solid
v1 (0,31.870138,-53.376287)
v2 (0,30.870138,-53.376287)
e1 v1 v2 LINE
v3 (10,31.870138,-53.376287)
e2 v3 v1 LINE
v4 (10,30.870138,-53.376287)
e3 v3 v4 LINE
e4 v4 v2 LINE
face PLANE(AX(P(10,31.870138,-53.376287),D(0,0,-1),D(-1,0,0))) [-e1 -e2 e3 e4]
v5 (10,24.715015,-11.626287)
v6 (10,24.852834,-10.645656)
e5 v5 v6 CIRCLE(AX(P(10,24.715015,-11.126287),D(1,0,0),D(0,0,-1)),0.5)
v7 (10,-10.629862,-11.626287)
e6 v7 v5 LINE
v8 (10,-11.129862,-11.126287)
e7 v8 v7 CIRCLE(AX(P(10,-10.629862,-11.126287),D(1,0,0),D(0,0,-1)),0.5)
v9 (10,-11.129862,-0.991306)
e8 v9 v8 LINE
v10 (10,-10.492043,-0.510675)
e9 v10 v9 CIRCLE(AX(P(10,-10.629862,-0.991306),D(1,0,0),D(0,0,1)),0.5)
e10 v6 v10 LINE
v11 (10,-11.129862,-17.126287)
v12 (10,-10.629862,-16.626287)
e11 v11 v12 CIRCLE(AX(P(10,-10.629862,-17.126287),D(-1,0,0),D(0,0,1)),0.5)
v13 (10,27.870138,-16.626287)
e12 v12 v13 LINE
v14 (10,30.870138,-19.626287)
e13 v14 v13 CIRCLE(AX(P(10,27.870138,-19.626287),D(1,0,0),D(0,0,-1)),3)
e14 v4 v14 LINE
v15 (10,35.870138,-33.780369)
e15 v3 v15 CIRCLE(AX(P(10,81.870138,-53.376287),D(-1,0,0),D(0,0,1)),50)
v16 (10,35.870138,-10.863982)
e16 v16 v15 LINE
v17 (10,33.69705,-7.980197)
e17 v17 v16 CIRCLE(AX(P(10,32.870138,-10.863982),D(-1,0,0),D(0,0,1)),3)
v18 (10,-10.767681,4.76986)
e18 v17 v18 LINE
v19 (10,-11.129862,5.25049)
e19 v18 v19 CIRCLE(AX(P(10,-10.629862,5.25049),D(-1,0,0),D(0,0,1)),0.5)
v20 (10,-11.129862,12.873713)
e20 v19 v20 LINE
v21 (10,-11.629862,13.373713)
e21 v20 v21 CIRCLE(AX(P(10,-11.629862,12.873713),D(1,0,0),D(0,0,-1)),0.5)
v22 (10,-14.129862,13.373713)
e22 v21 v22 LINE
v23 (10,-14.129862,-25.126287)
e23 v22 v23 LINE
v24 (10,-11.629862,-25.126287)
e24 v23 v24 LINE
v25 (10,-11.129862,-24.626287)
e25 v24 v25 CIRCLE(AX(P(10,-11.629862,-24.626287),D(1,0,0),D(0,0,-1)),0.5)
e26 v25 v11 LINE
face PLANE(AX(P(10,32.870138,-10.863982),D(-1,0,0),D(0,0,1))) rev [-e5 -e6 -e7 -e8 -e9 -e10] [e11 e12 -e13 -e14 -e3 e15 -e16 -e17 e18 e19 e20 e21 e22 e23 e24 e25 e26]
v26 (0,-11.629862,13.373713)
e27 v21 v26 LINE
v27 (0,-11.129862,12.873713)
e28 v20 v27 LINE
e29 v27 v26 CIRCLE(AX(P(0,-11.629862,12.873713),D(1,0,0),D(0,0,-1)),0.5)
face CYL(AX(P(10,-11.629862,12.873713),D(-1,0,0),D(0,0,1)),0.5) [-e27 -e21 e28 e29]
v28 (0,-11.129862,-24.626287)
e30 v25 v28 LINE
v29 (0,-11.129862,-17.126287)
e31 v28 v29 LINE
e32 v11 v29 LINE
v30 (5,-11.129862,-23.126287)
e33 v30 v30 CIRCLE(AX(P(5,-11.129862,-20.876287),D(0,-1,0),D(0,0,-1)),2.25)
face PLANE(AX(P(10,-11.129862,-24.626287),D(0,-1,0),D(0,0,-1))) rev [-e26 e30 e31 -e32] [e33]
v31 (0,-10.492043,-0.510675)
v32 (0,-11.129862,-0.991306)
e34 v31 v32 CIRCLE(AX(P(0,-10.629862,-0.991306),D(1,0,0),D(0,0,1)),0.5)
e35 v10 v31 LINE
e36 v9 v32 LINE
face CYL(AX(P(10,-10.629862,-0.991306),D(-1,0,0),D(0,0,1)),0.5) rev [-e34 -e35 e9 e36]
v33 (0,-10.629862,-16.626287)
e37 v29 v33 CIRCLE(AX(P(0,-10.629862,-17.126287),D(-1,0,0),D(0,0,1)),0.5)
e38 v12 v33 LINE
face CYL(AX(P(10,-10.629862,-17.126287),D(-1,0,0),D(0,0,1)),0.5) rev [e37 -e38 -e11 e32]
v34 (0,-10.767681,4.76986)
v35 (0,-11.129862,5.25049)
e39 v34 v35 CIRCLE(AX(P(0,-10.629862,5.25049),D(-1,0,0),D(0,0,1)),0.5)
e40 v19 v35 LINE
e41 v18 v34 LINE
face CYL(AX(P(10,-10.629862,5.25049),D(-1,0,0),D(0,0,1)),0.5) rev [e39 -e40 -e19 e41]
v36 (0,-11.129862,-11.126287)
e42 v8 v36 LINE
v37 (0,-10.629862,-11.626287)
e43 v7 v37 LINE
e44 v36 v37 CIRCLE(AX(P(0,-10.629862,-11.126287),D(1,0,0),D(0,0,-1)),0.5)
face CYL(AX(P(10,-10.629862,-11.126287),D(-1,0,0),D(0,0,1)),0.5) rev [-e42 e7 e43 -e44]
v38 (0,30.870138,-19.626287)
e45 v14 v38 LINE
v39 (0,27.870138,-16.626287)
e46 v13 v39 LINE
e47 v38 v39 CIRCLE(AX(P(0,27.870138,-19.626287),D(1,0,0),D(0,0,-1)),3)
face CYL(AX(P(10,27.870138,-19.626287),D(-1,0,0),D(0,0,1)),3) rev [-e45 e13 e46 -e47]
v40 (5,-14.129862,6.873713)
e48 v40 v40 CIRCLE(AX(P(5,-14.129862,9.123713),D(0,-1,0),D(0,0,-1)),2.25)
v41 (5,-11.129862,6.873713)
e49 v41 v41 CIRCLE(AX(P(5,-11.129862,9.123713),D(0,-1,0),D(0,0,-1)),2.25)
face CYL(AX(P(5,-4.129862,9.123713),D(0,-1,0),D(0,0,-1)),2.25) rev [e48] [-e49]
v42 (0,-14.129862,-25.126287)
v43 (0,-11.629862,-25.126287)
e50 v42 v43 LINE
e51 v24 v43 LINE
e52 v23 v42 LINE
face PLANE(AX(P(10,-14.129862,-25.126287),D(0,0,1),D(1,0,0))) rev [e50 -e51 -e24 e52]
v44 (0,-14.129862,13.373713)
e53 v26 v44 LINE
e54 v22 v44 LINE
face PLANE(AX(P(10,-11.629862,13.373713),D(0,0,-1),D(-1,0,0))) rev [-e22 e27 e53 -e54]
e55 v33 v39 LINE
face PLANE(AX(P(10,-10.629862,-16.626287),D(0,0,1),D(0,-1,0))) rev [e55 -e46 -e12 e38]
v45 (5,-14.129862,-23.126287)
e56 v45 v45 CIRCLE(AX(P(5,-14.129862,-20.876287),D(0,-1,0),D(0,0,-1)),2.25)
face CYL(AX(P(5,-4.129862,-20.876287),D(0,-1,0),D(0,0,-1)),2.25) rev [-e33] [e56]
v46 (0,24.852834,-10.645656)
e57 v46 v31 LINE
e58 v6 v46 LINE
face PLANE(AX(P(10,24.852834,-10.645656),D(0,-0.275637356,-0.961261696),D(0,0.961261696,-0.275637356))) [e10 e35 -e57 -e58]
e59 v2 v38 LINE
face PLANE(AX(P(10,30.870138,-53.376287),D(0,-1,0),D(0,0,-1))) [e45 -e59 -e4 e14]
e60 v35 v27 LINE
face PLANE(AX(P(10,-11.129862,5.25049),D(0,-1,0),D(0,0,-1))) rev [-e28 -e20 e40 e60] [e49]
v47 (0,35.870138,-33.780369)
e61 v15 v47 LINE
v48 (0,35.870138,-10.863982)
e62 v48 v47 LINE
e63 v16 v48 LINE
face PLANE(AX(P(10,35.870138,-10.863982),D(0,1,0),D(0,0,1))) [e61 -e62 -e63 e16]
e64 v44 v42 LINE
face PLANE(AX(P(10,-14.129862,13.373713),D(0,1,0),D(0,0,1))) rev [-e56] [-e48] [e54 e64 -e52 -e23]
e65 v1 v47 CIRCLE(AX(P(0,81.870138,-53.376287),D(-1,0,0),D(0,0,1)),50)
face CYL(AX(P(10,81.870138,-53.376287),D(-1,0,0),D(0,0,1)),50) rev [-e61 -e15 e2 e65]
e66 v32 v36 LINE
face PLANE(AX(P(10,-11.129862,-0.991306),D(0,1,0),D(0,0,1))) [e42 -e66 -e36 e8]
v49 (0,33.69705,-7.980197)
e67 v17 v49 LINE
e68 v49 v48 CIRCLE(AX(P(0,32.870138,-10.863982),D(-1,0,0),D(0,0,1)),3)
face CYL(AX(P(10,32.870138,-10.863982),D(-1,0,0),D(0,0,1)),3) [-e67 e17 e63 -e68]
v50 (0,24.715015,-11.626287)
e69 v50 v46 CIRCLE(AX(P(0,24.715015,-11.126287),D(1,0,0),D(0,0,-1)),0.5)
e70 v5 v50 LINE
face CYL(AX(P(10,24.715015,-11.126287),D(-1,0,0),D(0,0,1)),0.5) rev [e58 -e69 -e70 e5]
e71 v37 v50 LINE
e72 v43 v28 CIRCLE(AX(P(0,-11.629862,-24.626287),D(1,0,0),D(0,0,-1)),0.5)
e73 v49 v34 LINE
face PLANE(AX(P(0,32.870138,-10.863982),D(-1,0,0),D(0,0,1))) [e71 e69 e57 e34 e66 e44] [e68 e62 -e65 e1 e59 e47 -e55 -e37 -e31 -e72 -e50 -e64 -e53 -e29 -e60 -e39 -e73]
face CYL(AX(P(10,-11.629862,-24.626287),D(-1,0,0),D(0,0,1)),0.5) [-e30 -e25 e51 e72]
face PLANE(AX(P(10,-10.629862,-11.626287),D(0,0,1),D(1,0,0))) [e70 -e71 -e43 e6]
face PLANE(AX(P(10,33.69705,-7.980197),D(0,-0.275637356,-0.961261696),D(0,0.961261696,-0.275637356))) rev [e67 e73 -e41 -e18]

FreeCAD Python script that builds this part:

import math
import FreeCAD as App
import Part
import Sketcher

V = App.Vector
Q = App.Units.Quantity


def add_polygon(sketch, points):
    """Adds a closed chain of lines whose ends are joined by coincident constraints."""
    first, n = sketch.GeometryCount, len(points)
    for a, b in zip(points, points[1:] + points[:1]):
        sketch.addGeometry(Part.LineSegment(App.Vector(*a, 0), App.Vector(*b, 0)), False)
    for i in range(n):
        sketch.addConstraint(Sketcher.Constraint("Coincident", first + i, 2, first + (i + 1) % n, 1))

doc = App.newDocument("Part")
body = doc.addObject("PartDesign::Body", "Body")

# Sketch on YZ plane
sketch1 = body.newObject("Sketcher::SketchObject", "Sketch")
sketch1.AttachmentSupport = (doc.getObject("YZ_Plane"), [""])
sketch1.MapMode = "FlatFace"
sketch1.addGeometry(Part.LineSegment(V(33.69705, -7.980197, 0), V(-10.767681, 4.76986, 0)), False)
sketch1.addGeometry(Part.ArcOfCircle(Part.Circle(V(-10.629862, 5.25049, 0), V(0, 0, 1), 0.5), math.radians(180), math.radians(254)), False)
sketch1.addGeometry(Part.LineSegment(V(-11.129862, 5.25049, 0), V(-11.129862, 12.873713, 0)), False)
sketch1.addGeometry(Part.ArcOfCircle(Part.Circle(V(-11.629862, 12.873713, 0), V(0, 0, 1), 0.5), math.radians(0), math.radians(90)), False)
sketch1.addGeometry(Part.LineSegment(V(-11.629862, 13.373713, 0), V(-14.129862, 13.373713, 0)), False)
sketch1.addGeometry(Part.LineSegment(V(-14.129862, 13.373713, 0), V(-14.129862, -25.126287, 0)), False)
sketch1.addGeometry(Part.LineSegment(V(-14.129862, -25.126287, 0), V(-11.629862, -25.126287, 0)), False)
sketch1.addGeometry(Part.ArcOfCircle(Part.Circle(V(-11.629862, -24.626287, 0), V(0, 0, 1), 0.5), math.radians(-90), math.radians(0)), False)
sketch1.addGeometry(Part.LineSegment(V(-11.129862, -24.626287, 0), V(-11.129862, -17.126287, 0)), False)
sketch1.addGeometry(Part.ArcOfCircle(Part.Circle(V(-10.629862, -17.126287, 0), V(0, 0, 1), 0.5), math.radians(90), math.radians(180)), False)
sketch1.addGeometry(Part.LineSegment(V(-10.629862, -16.626287, 0), V(27.870138, -16.626287, 0)), False)
sketch1.addGeometry(Part.ArcOfCircle(Part.Circle(V(27.870138, -19.626287, 0), V(0, 0, 1), 3), math.radians(0), math.radians(90)), False)
sketch1.addGeometry(Part.LineSegment(V(30.870138, -19.626287, 0), V(30.870138, -53.376287, 0)), False)
sketch1.addGeometry(Part.LineSegment(V(30.870138, -53.376287, 0), V(31.870138, -53.376287, 0)), False)
sketch1.addGeometry(Part.ArcOfCircle(Part.Circle(V(81.870138, -53.376287, 0), V(0, 0, 1), 50), math.radians(156.926082), math.radians(180)), False)
sketch1.addGeometry(Part.LineSegment(V(35.870138, -33.780369, 0), V(35.870138, -10.863982, 0)), False)
sketch1.addGeometry(Part.ArcOfCircle(Part.Circle(V(32.870138, -10.863982, 0), V(0, 0, 1), 3), math.radians(0), math.radians(74)), False)
sketch1.addConstraint(Sketcher.Constraint("Tangent", 0, 2, 1, 2))
sketch1.addConstraint(Sketcher.Constraint("Tangent", 1, 1, 2, 1))
sketch1.addConstraint(Sketcher.Constraint("Tangent", 2, 2, 3, 1))
sketch1.addConstraint(Sketcher.Constraint("Tangent", 3, 2, 4, 1))
sketch1.addConstraint(Sketcher.Constraint("Coincident", 4, 2, 5, 1))
sketch1.addConstraint(Sketcher.Constraint("Coincident", 5, 2, 6, 1))
sketch1.addConstraint(Sketcher.Constraint("Tangent", 6, 2, 7, 1))
sketch1.addConstraint(Sketcher.Constraint("Tangent", 7, 2, 8, 1))
sketch1.addConstraint(Sketcher.Constraint("Tangent", 8, 2, 9, 2))
sketch1.addConstraint(Sketcher.Constraint("Tangent", 9, 1, 10, 1))
sketch1.addConstraint(Sketcher.Constraint("Tangent", 10, 2, 11, 2))
sketch1.addConstraint(Sketcher.Constraint("Tangent", 11, 1, 12, 1))
sketch1.addConstraint(Sketcher.Constraint("Coincident", 12, 2, 13, 1))
sketch1.addConstraint(Sketcher.Constraint("Coincident", 13, 2, 14, 2))
sketch1.addConstraint(Sketcher.Constraint("Coincident", 14, 1, 15, 1))
sketch1.addConstraint(Sketcher.Constraint("Tangent", 15, 2, 16, 1))
sketch1.addConstraint(Sketcher.Constraint("Tangent", 16, 2, 0, 1))
sketch1.addConstraint(Sketcher.Constraint("Vertical", 2))
sketch1.addConstraint(Sketcher.Constraint("Horizontal", 4))
sketch1.addConstraint(Sketcher.Constraint("Vertical", 5))
sketch1.addConstraint(Sketcher.Constraint("Horizontal", 6))
sketch1.addConstraint(Sketcher.Constraint("Vertical", 8))
sketch1.addConstraint(Sketcher.Constraint("Horizontal", 10))
sketch1.addConstraint(Sketcher.Constraint("Vertical", 12))
sketch1.addConstraint(Sketcher.Constraint("Horizontal", 13))
sketch1.addConstraint(Sketcher.Constraint("Vertical", 15))
sketch1.addConstraint(Sketcher.Constraint("Equal", 1, 3))
sketch1.addConstraint(Sketcher.Constraint("Equal", 3, 7))
sketch1.addConstraint(Sketcher.Constraint("Equal", 7, 9))
sketch1.addConstraint(Sketcher.Constraint("Equal", 11, 16))
sketch1.addConstraint(Sketcher.Constraint("Horizontal", 14, 3, 12, 2))
sketch1.addConstraint(Sketcher.Constraint("Vertical", 3, 3, 7, 3))
sketch1.addConstraint(Sketcher.Constraint("Equal", 10, 5))
sketch1.addConstraint(Sketcher.Constraint("Radius", 11, 3.0))
sketch1.addConstraint(Sketcher.Constraint("Radius", 14, 50.0))
sketch1.addConstraint(Sketcher.Constraint("Radius", 1, 0.5))
sketch1.addConstraint(Sketcher.Constraint("DistanceX", 13, 1, 13, 2, 1.0))
sketch1.addConstraint(Sketcher.Constraint("Angle", 0, Q("164 deg")))
sketch1.addConstraint(Sketcher.Constraint("DistanceX", 4, 2, 4, 1, 2.5))
sketch1.addConstraint(Sketcher.Constraint("DistanceX", 10, 1, 10, 2, 38.5))
sketch1.addConstraint(Sketcher.Constraint("DistanceY", 8, 1, 8, 2, 7.5))
sketch1.addConstraint(Sketcher.Constraint("DistanceX", 11, 3, 16, 3, 5.0))
sketch1.addConstraint(Sketcher.Constraint("DistanceY", 12, 2, 12, 1, 33.75))
sketch1.addConstraint(Sketcher.Constraint("DistanceY", 2, 1, 2, 2, 7.623223))
sketch1.addConstraint(Sketcher.Constraint("DistanceX", 1, 3, -1, 1, 10.629862))
sketch1.addConstraint(Sketcher.Constraint("DistanceY", -1, 1, 1, 3, 5.25049))
pad1 = body.newObject("PartDesign::Pad", "Pad")
pad1.Profile = sketch1
pad1.Length = 10

# Sketch on YZ plane
sketch2 = body.newObject("Sketcher::SketchObject", "Sketch001")
sketch2.AttachmentSupport = (doc.getObject("YZ_Plane"), [""])
sketch2.MapMode = "FlatFace"
add_polygon(sketch2, [(45.27, 22.774), (-23.53, 22.774), (-23.53, -62.776), (45.27, -62.776)])  # lines 0-3
sketch2.addGeometry(Part.LineSegment(V(-10.767681, 4.76986, 0), V(33.69705, -7.980197, 0)), False)  # 4
sketch2.addGeometry(Part.ArcOfCircle(Part.Circle(V(32.870138, -10.863982, 0), V(0, 0, 1), 3), math.radians(0), math.radians(74)), False)  # 5
sketch2.addGeometry(Part.LineSegment(V(35.870138, -10.863982, 0), V(35.870138, -33.780369, 0)), False)  # 6
sketch2.addGeometry(Part.ArcOfCircle(Part.Circle(V(81.870138, -53.376287, 0), V(0, 0, 1), 50), math.radians(156.926082), math.radians(180)), False)  # 7
sketch2.addGeometry(Part.LineSegment(V(31.870138, -53.376287, 0), V(30.870138, -53.376287, 0)), False)  # 8
sketch2.addGeometry(Part.LineSegment(V(30.870138, -53.376287, 0), V(30.870138, -19.626287, 0)), False)  # 9
sketch2.addGeometry(Part.ArcOfCircle(Part.Circle(V(27.870138, -19.626287, 0), V(0, 0, 1), 3), math.radians(0), math.radians(90)), False)  # 10
sketch2.addGeometry(Part.LineSegment(V(27.870138, -16.626287, 0), V(-10.629862, -16.626287, 0)), False)  # 11
sketch2.addGeometry(Part.ArcOfCircle(Part.Circle(V(-10.629862, -17.126287, 0), V(0, 0, 1), 0.5), math.radians(90), math.radians(180)), False)  # 12
sketch2.addGeometry(Part.LineSegment(V(-11.129862, -17.126287, 0), V(-11.129862, -24.626287, 0)), False)  # 13
sketch2.addGeometry(Part.ArcOfCircle(Part.Circle(V(-11.629862, -24.626287, 0), V(0, 0, 1), 0.5), math.radians(-90), math.radians(0)), False)  # 14
sketch2.addGeometry(Part.LineSegment(V(-11.629862, -25.126287, 0), V(-14.129862, -25.126287, 0)), False)  # 15
sketch2.addGeometry(Part.LineSegment(V(-14.129862, -25.126287, 0), V(-14.129862, 13.373713, 0)), False)  # 16
sketch2.addGeometry(Part.LineSegment(V(-14.129862, 13.373713, 0), V(-11.629862, 13.373713, 0)), False)  # 17
sketch2.addGeometry(Part.ArcOfCircle(Part.Circle(V(-11.629862, 12.873713, 0), V(0, 0, 1), 0.5), math.radians(0), math.radians(90)), False)  # 18
sketch2.addGeometry(Part.LineSegment(V(-11.129862, 12.873713, 0), V(-11.129862, 5.25049, 0)), False)  # 19
sketch2.addGeometry(Part.ArcOfCircle(Part.Circle(V(-10.629862, 5.25049, 0), V(0, 0, 1), 0.5), math.radians(180), math.radians(254)), False)  # 20
sketch2.addGeometry(Part.LineSegment(V(-11.129862, -0.991306, 0), V(-11.129862, -11.126287, 0)), False)  # 21
sketch2.addGeometry(Part.ArcOfCircle(Part.Circle(V(-10.629862, -11.126287, 0), V(0, 0, 1), 0.5), math.radians(180), math.radians(270)), False)  # 22
sketch2.addGeometry(Part.LineSegment(V(-10.629862, -11.626287, 0), V(24.715015, -11.626287, 0)), False)  # 23
sketch2.addGeometry(Part.ArcOfCircle(Part.Circle(V(24.715015, -11.126287, 0), V(0, 0, 1), 0.5), math.radians(-90), math.radians(74)), False)  # 24
sketch2.addGeometry(Part.LineSegment(V(24.852834, -10.645656, 0), V(-10.492043, -0.510675, 0)), False)  # 25
sketch2.addGeometry(Part.ArcOfCircle(Part.Circle(V(-10.629862, -0.991306, 0), V(0, 0, 1), 0.5), math.radians(74), math.radians(180)), False)  # 26
sketch2.addConstraint(Sketcher.Constraint("Tangent", 4, 2, 5, 2))
sketch2.addConstraint(Sketcher.Constraint("Tangent", 5, 1, 6, 1))
sketch2.addConstraint(Sketcher.Constraint("Coincident", 6, 2, 7, 1))
sketch2.addConstraint(Sketcher.Constraint("Coincident", 7, 2, 8, 1))
sketch2.addConstraint(Sketcher.Constraint("Coincident", 8, 2, 9, 1))
sketch2.addConstraint(Sketcher.Constraint("Tangent", 9, 2, 10, 1))
sketch2.addConstraint(Sketcher.Constraint("Tangent", 10, 2, 11, 1))
sketch2.addConstraint(Sketcher.Constraint("Tangent", 11, 2, 12, 1))
sketch2.addConstraint(Sketcher.Constraint("Tangent", 12, 2, 13, 1))
sketch2.addConstraint(Sketcher.Constraint("Tangent", 13, 2, 14, 2))
sketch2.addConstraint(Sketcher.Constraint("Tangent", 14, 1, 15, 1))
sketch2.addConstraint(Sketcher.Constraint("Coincident", 15, 2, 16, 1))
sketch2.addConstraint(Sketcher.Constraint("Coincident", 16, 2, 17, 1))
sketch2.addConstraint(Sketcher.Constraint("Tangent", 17, 2, 18, 2))
sketch2.addConstraint(Sketcher.Constraint("Tangent", 18, 1, 19, 1))
sketch2.addConstraint(Sketcher.Constraint("Tangent", 19, 2, 20, 1))
sketch2.addConstraint(Sketcher.Constraint("Tangent", 20, 2, 4, 1))
sketch2.addConstraint(Sketcher.Constraint("Tangent", 21, 2, 22, 1))
sketch2.addConstraint(Sketcher.Constraint("Tangent", 22, 2, 23, 1))
sketch2.addConstraint(Sketcher.Constraint("Tangent", 23, 2, 24, 1))
sketch2.addConstraint(Sketcher.Constraint("Tangent", 24, 2, 25, 1))
sketch2.addConstraint(Sketcher.Constraint("Tangent", 25, 2, 26, 1))
sketch2.addConstraint(Sketcher.Constraint("Tangent", 26, 2, 21, 1))
sketch2.addConstraint(Sketcher.Constraint("Horizontal", 0))
sketch2.addConstraint(Sketcher.Constraint("Vertical", 1))
sketch2.addConstraint(Sketcher.Constraint("Horizontal", 2))
sketch2.addConstraint(Sketcher.Constraint("Vertical", 3))
sketch2.addConstraint(Sketcher.Constraint("Vertical", 6))
sketch2.addConstraint(Sketcher.Constraint("Horizontal", 8))
sketch2.addConstraint(Sketcher.Constraint("Vertical", 9))
sketch2.addConstraint(Sketcher.Constraint("Horizontal", 11))
sketch2.addConstraint(Sketcher.Constraint("Vertical", 13))
sketch2.addConstraint(Sketcher.Constraint("Horizontal", 15))
sketch2.addConstraint(Sketcher.Constraint("Vertical", 16))
sketch2.addConstraint(Sketcher.Constraint("Horizontal", 17))
sketch2.addConstraint(Sketcher.Constraint("Vertical", 19))
sketch2.addConstraint(Sketcher.Constraint("Vertical", 21))
sketch2.addConstraint(Sketcher.Constraint("Horizontal", 23))
sketch2.addConstraint(Sketcher.Constraint("Equal", 5, 10))
sketch2.addConstraint(Sketcher.Constraint("Equal", 12, 14))
sketch2.addConstraint(Sketcher.Constraint("Equal", 14, 18))
sketch2.addConstraint(Sketcher.Constraint("Equal", 18, 20))
sketch2.addConstraint(Sketcher.Constraint("Equal", 20, 22))
sketch2.addConstraint(Sketcher.Constraint("Equal", 22, 24))
sketch2.addConstraint(Sketcher.Constraint("Equal", 24, 26))
sketch2.addConstraint(Sketcher.Constraint("Parallel", 4, 25))
sketch2.addConstraint(Sketcher.Constraint("Vertical", 14, 3, 18, 3))
sketch2.addConstraint(Sketcher.Constraint("Vertical", 20, 3, 22, 3))
sketch2.addConstraint(Sketcher.Constraint("Equal", 11, 16))
sketch2.addConstraint(Sketcher.Constraint("Radius", 5, 3.0))
sketch2.addConstraint(Sketcher.Constraint("Radius", 7, 50.0))
sketch2.addConstraint(Sketcher.Constraint("Radius", 12, 0.5))
sketch2.addConstraint(Sketcher.Constraint("DistanceX", 8, 2, 8, 1, 1.0))
sketch2.addConstraint(Sketcher.Constraint("Angle", 4, Q("-16 deg")))
sketch2.addConstraint(Sketcher.Constraint("DistanceX", 0, 2, 0, 1, 68.8))
sketch2.addConstraint(Sketcher.Constraint("DistanceX", 11, 2, 11, 1, 38.5))
sketch2.addConstraint(Sketcher.Constraint("DistanceX", 15, 2, 15, 1, 2.5))
sketch2.addConstraint(Sketcher.Constraint("DistanceY", 13, 2, 13, 1, 7.5))
sketch2.addConstraint(Sketcher.Constraint("DistanceX", 5, 3, 7, 3, 49.0))
sketch2.addConstraint(Sketcher.Constraint("DistanceY", 12, 3, 22, 3, 6.0))
sketch2.addConstraint(Sketcher.Constraint("DistanceY", 1, 2, 1, 1, 85.55))
sketch2.addConstraint(Sketcher.Constraint("DistanceY", 9, 1, 9, 2, 33.75))
sketch2.addConstraint(Sketcher.Constraint("DistanceX", 0, 2, -1, 1, 23.53))
sketch2.addConstraint(Sketcher.Constraint("DistanceY", 7, 3, 10, 3, 33.75))
sketch2.addConstraint(Sketcher.Constraint("DistanceY", -1, 1, 0, 2, 22.774))
sketch2.addConstraint(Sketcher.Constraint("DistanceY", 21, 2, 21, 1, 10.13498))
sketch2.addConstraint(Sketcher.Constraint("DistanceY", 6, 2, 6, 1, 22.916387))
sketch2.addConstraint(Sketcher.Constraint("DistanceX", -1, 1, 5, 3, 32.870138))
sketch2.addConstraint(Sketcher.Constraint("DistanceY", 5, 3, -1, 1, 10.863982))
pocket1 = body.newObject("PartDesign::Pocket", "Pocket")
pocket1.Profile = sketch2
pocket1.Length = 10
pocket1.Reversed = True

# Sketch on XZ plane
sketch3 = body.newObject("Sketcher::SketchObject", "Sketch002")
sketch3.AttachmentSupport = (doc.getObject("XZ_Plane"), [""])
sketch3.MapMode = "FlatFace"
sketch3.AttachmentOffset = App.Placement(V(0, 0, 14.129862), App.Rotation())
sketch3.addGeometry(Part.Circle(V(5, 9.123713, 0), V(0, 0, 1), 2.25), False)
sketch3.addGeometry(Part.Circle(V(5, -20.876287, 0), V(0, 0, 1), 2.25), False)
sketch3.addConstraint(Sketcher.Constraint("Equal", 0, 1))
sketch3.addConstraint(Sketcher.Constraint("Vertical", 0, 3, 1, 3))
sketch3.addConstraint(Sketcher.Constraint("Diameter", 0, 4.5))
sketch3.addConstraint(Sketcher.Constraint("DistanceX", -1, 1, 0, 3, 5.0))
sketch3.addConstraint(Sketcher.Constraint("DistanceY", 1, 3, 0, 3, 30.0))
sketch3.addConstraint(Sketcher.Constraint("DistanceY", -1, 1, 0, 3, 9.123713))
pocket2 = body.newObject("PartDesign::Pocket", "Pocket001")
pocket2.Profile = sketch3
pocket2.Length = 10

doc.recompute()
